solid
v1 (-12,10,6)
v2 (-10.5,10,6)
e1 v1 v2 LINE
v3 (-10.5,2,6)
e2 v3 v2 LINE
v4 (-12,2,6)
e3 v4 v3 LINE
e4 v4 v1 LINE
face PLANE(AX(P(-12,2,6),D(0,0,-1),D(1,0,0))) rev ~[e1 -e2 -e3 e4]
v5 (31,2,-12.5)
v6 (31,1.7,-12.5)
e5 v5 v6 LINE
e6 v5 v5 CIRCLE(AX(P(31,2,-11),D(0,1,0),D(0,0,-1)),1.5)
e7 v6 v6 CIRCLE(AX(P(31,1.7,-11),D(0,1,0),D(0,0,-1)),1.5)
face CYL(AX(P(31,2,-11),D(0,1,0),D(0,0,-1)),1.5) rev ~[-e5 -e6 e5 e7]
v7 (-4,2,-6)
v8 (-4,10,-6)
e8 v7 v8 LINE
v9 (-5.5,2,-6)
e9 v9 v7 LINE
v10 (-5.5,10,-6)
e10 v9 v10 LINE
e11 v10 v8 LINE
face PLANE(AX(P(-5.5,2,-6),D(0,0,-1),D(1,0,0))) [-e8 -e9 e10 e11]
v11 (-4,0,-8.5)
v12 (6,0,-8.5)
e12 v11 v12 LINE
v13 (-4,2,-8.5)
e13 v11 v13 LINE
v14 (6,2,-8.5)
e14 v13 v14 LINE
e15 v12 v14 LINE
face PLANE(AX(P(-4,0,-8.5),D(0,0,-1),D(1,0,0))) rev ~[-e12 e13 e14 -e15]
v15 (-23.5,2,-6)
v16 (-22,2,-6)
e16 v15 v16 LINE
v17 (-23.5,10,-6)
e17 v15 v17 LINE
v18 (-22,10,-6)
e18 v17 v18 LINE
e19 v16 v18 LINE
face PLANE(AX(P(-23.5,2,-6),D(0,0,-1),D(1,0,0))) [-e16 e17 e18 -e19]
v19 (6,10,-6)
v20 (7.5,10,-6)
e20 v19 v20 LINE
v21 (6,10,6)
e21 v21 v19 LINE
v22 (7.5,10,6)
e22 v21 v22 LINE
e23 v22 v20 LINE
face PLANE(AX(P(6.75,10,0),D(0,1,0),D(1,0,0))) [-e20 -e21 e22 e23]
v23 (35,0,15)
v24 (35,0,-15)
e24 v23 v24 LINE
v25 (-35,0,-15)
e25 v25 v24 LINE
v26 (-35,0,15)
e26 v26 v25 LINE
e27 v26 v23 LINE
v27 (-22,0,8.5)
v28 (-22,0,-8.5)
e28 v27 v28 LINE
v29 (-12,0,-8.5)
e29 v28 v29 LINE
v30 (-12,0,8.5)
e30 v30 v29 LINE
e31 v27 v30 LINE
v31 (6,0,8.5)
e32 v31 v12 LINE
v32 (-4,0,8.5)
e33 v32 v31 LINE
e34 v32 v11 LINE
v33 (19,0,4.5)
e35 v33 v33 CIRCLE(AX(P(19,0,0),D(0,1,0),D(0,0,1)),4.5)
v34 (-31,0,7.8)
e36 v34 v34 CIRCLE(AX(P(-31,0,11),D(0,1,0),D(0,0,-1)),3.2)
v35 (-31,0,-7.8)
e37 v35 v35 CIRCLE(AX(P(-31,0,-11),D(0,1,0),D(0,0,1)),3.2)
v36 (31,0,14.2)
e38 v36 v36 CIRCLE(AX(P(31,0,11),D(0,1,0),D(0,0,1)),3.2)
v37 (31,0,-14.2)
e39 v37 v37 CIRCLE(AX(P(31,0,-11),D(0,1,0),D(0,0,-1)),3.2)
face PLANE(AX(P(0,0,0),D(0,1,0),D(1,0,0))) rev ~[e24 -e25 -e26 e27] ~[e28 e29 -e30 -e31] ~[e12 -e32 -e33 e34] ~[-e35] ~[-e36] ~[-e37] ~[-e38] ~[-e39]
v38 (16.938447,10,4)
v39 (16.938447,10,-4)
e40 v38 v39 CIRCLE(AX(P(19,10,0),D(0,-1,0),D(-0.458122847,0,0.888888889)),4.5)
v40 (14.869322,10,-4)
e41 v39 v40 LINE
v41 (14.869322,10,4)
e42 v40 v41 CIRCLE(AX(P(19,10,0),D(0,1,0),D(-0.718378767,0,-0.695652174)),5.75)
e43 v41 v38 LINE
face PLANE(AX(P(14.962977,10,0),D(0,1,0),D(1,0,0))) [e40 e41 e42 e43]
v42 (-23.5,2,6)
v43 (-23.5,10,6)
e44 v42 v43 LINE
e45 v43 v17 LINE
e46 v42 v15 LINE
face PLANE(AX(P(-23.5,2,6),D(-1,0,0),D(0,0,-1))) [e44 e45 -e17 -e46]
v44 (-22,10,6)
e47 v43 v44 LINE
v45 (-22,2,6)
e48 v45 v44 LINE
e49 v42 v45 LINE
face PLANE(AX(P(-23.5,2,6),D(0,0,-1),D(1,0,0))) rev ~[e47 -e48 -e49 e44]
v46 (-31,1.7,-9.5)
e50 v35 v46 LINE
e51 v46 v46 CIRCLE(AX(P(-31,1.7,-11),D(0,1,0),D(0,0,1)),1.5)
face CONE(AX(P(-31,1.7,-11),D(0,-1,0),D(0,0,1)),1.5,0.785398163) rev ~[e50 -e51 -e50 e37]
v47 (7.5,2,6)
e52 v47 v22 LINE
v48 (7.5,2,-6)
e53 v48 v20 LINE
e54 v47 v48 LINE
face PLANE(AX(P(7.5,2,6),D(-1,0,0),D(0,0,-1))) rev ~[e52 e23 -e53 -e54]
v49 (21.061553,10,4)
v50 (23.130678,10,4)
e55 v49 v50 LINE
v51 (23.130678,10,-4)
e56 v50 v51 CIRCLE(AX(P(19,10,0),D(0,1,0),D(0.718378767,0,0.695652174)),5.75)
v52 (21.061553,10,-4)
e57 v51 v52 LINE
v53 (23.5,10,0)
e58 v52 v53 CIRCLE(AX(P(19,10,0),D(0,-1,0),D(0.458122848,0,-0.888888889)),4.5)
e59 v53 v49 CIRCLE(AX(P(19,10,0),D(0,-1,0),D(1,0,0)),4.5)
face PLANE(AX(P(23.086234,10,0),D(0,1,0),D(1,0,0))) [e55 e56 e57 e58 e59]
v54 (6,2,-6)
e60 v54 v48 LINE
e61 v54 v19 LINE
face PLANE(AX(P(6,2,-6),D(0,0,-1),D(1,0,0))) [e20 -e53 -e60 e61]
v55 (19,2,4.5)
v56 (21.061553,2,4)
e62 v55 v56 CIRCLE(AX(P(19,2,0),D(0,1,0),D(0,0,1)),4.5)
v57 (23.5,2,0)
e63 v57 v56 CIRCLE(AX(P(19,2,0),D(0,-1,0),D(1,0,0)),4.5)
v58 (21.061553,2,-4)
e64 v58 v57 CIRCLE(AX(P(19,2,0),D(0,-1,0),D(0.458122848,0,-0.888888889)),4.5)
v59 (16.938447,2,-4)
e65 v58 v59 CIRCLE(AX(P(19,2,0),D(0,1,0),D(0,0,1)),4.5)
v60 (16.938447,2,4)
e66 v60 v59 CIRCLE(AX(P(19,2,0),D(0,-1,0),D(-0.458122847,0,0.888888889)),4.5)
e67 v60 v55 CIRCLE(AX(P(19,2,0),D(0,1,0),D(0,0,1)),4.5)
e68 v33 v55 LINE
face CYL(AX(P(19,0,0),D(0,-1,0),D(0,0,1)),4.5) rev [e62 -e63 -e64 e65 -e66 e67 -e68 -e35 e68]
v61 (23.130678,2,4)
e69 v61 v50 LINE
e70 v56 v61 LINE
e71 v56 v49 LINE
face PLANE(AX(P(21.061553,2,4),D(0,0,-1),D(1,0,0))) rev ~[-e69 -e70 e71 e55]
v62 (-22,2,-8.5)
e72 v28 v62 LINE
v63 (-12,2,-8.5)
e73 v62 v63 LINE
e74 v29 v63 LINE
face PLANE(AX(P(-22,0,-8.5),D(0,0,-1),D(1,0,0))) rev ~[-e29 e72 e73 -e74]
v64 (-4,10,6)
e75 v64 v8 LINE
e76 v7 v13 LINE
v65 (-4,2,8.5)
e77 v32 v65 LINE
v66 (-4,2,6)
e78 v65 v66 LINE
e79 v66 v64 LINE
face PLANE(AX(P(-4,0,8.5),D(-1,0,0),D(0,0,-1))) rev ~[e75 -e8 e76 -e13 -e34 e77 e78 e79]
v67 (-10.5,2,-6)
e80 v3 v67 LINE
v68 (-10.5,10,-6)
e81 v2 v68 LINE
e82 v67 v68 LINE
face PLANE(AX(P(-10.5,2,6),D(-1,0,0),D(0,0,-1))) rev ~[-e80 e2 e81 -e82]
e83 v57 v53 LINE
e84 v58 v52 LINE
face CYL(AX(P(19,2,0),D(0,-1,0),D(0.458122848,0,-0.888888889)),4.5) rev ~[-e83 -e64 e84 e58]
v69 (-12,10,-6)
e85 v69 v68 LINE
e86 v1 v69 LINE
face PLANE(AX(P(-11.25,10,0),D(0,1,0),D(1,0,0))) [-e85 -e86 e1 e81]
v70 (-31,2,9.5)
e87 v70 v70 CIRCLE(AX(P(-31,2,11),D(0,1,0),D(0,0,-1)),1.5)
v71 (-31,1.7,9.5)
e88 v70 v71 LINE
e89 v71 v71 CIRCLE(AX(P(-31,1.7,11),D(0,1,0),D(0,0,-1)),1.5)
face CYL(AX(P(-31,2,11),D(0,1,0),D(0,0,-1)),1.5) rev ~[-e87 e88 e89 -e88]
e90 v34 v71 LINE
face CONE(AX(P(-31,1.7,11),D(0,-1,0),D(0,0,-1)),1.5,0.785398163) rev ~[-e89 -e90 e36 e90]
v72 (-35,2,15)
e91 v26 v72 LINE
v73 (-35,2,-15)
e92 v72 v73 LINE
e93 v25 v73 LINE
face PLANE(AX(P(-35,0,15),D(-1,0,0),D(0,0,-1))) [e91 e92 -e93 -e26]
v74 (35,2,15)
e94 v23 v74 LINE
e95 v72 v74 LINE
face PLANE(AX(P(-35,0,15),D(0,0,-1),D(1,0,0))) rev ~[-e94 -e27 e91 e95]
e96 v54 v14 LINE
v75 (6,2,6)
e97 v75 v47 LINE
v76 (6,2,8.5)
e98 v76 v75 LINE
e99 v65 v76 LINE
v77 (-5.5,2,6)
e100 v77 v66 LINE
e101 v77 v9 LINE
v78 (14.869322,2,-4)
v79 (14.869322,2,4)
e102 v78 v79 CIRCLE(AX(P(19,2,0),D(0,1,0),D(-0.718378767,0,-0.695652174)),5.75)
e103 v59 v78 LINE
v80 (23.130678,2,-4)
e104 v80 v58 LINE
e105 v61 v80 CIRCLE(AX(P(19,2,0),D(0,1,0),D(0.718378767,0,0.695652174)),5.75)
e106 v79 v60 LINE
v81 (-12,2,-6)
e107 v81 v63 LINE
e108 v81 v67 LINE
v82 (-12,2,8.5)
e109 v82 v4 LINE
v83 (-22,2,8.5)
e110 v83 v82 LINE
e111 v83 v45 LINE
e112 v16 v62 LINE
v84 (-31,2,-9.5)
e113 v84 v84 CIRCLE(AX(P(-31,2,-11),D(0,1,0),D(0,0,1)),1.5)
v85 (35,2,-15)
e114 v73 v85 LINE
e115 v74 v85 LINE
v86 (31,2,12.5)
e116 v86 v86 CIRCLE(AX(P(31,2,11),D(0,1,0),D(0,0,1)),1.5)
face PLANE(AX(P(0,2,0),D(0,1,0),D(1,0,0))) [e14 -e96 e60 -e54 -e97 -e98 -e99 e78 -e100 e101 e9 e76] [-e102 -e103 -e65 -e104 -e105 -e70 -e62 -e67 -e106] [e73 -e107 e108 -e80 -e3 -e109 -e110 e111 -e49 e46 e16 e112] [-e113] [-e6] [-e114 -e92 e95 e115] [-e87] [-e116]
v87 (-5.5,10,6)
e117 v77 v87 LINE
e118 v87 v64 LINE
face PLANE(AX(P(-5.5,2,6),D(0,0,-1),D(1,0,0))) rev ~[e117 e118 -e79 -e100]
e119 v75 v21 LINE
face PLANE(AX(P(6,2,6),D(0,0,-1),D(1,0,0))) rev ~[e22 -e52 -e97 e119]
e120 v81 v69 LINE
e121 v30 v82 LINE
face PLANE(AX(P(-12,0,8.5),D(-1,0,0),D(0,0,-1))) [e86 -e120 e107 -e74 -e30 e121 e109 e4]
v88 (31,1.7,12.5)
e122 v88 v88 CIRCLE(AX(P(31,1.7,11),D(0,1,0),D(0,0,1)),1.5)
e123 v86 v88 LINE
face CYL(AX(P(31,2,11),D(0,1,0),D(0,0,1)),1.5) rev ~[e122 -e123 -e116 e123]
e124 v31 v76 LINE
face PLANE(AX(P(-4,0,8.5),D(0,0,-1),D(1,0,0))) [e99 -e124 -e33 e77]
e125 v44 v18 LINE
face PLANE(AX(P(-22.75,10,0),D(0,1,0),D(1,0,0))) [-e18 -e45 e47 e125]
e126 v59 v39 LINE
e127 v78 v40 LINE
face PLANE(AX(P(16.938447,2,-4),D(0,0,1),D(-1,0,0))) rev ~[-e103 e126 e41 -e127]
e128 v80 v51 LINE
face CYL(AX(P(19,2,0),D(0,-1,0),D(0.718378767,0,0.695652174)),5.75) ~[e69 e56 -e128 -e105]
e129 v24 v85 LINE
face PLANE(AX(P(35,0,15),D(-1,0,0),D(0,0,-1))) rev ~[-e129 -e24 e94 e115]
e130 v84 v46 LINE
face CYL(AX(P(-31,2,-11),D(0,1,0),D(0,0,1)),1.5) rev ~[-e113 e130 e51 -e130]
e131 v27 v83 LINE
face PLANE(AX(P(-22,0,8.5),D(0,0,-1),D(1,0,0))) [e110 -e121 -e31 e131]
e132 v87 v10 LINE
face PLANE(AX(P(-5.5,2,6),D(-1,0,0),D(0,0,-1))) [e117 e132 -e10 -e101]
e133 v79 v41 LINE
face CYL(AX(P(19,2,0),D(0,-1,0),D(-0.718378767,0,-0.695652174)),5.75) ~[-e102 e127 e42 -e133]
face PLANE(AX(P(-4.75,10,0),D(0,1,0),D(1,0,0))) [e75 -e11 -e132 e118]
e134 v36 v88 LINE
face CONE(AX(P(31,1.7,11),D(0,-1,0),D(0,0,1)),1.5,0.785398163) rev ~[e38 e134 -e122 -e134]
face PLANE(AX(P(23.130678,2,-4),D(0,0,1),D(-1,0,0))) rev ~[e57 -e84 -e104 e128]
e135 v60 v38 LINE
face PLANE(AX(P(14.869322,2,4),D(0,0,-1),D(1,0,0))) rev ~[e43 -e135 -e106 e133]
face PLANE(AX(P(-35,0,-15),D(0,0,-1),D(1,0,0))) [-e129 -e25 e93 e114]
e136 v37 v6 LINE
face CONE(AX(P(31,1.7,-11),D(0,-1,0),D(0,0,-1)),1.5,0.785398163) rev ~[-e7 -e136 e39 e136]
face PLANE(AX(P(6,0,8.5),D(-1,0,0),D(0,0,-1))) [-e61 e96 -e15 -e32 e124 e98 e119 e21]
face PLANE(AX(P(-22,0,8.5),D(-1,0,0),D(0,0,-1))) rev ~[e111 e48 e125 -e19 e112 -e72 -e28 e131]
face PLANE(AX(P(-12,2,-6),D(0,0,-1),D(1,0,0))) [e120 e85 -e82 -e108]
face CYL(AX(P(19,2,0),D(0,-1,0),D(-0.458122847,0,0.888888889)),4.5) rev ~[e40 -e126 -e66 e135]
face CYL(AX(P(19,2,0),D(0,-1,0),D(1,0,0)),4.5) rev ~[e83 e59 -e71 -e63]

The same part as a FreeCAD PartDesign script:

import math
import FreeCAD as App
import Part
import Sketcher

V = App.Vector


def edges_at(feature, points):
    """Names of the edges that pass closest to the given points."""
    edges = feature.Shape.Edges
    near = lambda p: min(range(len(edges)), key=lambda i: edges[i].distToShape(Part.Vertex(*p))[0])
    return sorted({f"Edge{near(p) + 1}" for p in points})


def add_polygon(sketch, points):
    """Adds a closed chain of lines whose ends are joined by coincident constraints."""
    first, n = sketch.GeometryCount, len(points)
    for a, b in zip(points, points[1:] + points[:1]):
        sketch.addGeometry(Part.LineSegment(App.Vector(*a, 0), App.Vector(*b, 0)), False)
    for i in range(n):
        sketch.addConstraint(Sketcher.Constraint("Coincident", first + i, 2, first + (i + 1) % n, 1))

doc = App.newDocument("Part")
body = doc.addObject("PartDesign::Body", "Body")

# Sketch on XZ plane
sketch1 = body.newObject("Sketcher::SketchObject", "Sketch")
sketch1.AttachmentSupport = (doc.getObject("XZ_Plane"), [""])
sketch1.MapMode = "FlatFace"
add_polygon(sketch1, [(-35, -15), (-35, 15), (35, 15), (35, -15)])  # lines 0-3
add_polygon(sketch1, [(-12, 8.5), (-22, 8.5), (-22, -8.5), (-12, -8.5)])  # lines 4-7
add_polygon(sketch1, [(6, 8.5), (-4, 8.5), (-4, -8.5), (6, -8.5)])  # lines 8-11
sketch1.addGeometry(Part.Circle(V(19, 0, 0), V(0, 0, 1), 4.5), False)  # 12
sketch1.addConstraint(Sketcher.Constraint("Vertical", 0))
sketch1.addConstraint(Sketcher.Constraint("Horizontal", 1))
sketch1.addConstraint(Sketcher.Constraint("Vertical", 2))
sketch1.addConstraint(Sketcher.Constraint("Horizontal", 3))
sketch1.addConstraint(Sketcher.Constraint("Horizontal", 4))
sketch1.addConstraint(Sketcher.Constraint("Vertical", 5))
sketch1.addConstraint(Sketcher.Constraint("Horizontal", 6))
sketch1.addConstraint(Sketcher.Constraint("Vertical", 7))
sketch1.addConstraint(Sketcher.Constraint("Horizontal", 8))
sketch1.addConstraint(Sketcher.Constraint("Vertical", 9))
sketch1.addConstraint(Sketcher.Constraint("Horizontal", 10))
sketch1.addConstraint(Sketcher.Constraint("Vertical", 11))
sketch1.addConstraint(Sketcher.Constraint("Symmetric", 0, 2, 2, 2, -1, 1))
sketch1.addConstraint(Sketcher.Constraint("PointOnObject", 12, 3, -1))
sketch1.addConstraint(Sketcher.Constraint("Horizontal", 7, 2, 8, 2))
sketch1.addConstraint(Sketcher.Constraint("Horizontal", 6, 2, 9, 2))
sketch1.addConstraint(Sketcher.Constraint("Equal", 6, 8))
sketch1.addConstraint(Sketcher.Constraint("Diameter", 12, 9.0))
sketch1.addConstraint(Sketcher.Constraint("DistanceX", 1, 1, 1, 2, 70.0))
sketch1.addConstraint(Sketcher.Constraint("DistanceX", 4, 2, 4, 1, 10.0))
sketch1.addConstraint(Sketcher.Constraint("DistanceY", 0, 1, 0, 2, 30.0))
sketch1.addConstraint(Sketcher.Constraint("DistanceY", 5, 2, 5, 1, 17.0))
sketch1.addConstraint(Sketcher.Constraint("DistanceX", -1, 1, 12, 3, 19.0))
sketch1.addConstraint(Sketcher.Constraint("DistanceX", 4, 2, -1, 1, 22.0))
sketch1.addConstraint(Sketcher.Constraint("DistanceX", 8, 2, -1, 1, 4.0))
sketch1.addConstraint(Sketcher.Constraint("DistanceY", -1, 1, 4, 2, 8.5))
pad1 = body.newObject("PartDesign::Pad", "Pad")
pad1.Profile = sketch1
pad1.Length = 2
pad1.Reversed = True

# Sketch on XZ plane
sketch2 = body.newObject("Sketcher::SketchObject", "Sketch001")
sketch2.AttachmentSupport = (doc.getObject("XZ_Plane"), [""])
sketch2.MapMode = "FlatFace"
sketch2.AttachmentOffset = App.Placement(V(0, 0, -2), App.Rotation())
add_polygon(sketch2, [(-23.5, -6), (-23.5, 6), (-22, 6), (-22, -6)])  # lines 0-3
add_polygon(sketch2, [(-12, -6), (-12, 6), (-10.5, 6), (-10.5, -6)])  # lines 4-7
add_polygon(sketch2, [(-5.5, -6), (-5.5, 6), (-4, 6), (-4, -6)])  # lines 8-11
add_polygon(sketch2, [(6, -6), (6, 6), (7.5, 6), (7.5, -6)])  # lines 12-15
sketch2.addGeometry(Part.LineSegment(V(16.9, -4, 0), V(14.9, -4, 0)), False)  # 16
sketch2.addGeometry(Part.ArcOfCircle(Part.Circle(V(19, 0, 0), V(0, 0, 1), 5.7), math.radians(136), math.radians(224)), False)  # 17
sketch2.addGeometry(Part.LineSegment(V(14.9, 4, 0), V(16.9, 4, 0)), False)  # 18
sketch2.addGeometry(Part.ArcOfCircle(Part.Circle(V(19, 0, 0), V(0, 0, 1), 4.5), math.radians(117), math.radians(243)), False)  # 19
sketch2.addGeometry(Part.LineSegment(V(23.1, -4, 0), V(21.1, -4, 0)), False)  # 20
sketch2.addGeometry(Part.ArcOfCircle(Part.Circle(V(19, 0, 0), V(0, 0, 1), 4.5), math.radians(-63), math.radians(0)), False)  # 21
sketch2.addGeometry(Part.ArcOfCircle(Part.Circle(V(19, 0, 0), V(0, 0, 1), 4.5), math.radians(0), math.radians(63)), False)  # 22
sketch2.addGeometry(Part.LineSegment(V(21.1, 4, 0), V(23.1, 4, 0)), False)  # 23
sketch2.addGeometry(Part.ArcOfCircle(Part.Circle(V(19, 0, 0), V(0, 0, 1), 5.7), math.radians(-44), math.radians(44)), False)  # 24
sketch2.addConstraint(Sketcher.Constraint("Coincident", 16, 2, 17, 2))
sketch2.addConstraint(Sketcher.Constraint("Coincident", 17, 1, 18, 1))
sketch2.addConstraint(Sketcher.Constraint("Coincident", 18, 2, 19, 1))
sketch2.addConstraint(Sketcher.Constraint("Coincident", 19, 2, 16, 1))
sketch2.addConstraint(Sketcher.Constraint("Coincident", 20, 2, 21, 1))
sketch2.addConstraint(Sketcher.Constraint("Tangent", 21, 2, 22, 1))
sketch2.addConstraint(Sketcher.Constraint("Coincident", 22, 2, 23, 1))
sketch2.addConstraint(Sketcher.Constraint("Coincident", 23, 2, 24, 2))
sketch2.addConstraint(Sketcher.Constraint("Coincident", 24, 1, 20, 1))
sketch2.addConstraint(Sketcher.Constraint("Vertical", 0))
sketch2.addConstraint(Sketcher.Constraint("Horizontal", 1))
sketch2.addConstraint(Sketcher.Constraint("Vertical", 2))
sketch2.addConstraint(Sketcher.Constraint("Horizontal", 3))
sketch2.addConstraint(Sketcher.Constraint("Vertical", 4))
sketch2.addConstraint(Sketcher.Constraint("Horizontal", 5))
sketch2.addConstraint(Sketcher.Constraint("Vertical", 6))
sketch2.addConstraint(Sketcher.Constraint("Horizontal", 7))
sketch2.addConstraint(Sketcher.Constraint("Vertical", 8))
sketch2.addConstraint(Sketcher.Constraint("Horizontal", 9))
sketch2.addConstraint(Sketcher.Constraint("Vertical", 10))
sketch2.addConstraint(Sketcher.Constraint("Horizontal", 11))
sketch2.addConstraint(Sketcher.Constraint("Vertical", 12))
sketch2.addConstraint(Sketcher.Constraint("Horizontal", 13))
sketch2.addConstraint(Sketcher.Constraint("Vertical", 14))
sketch2.addConstraint(Sketcher.Constraint("Horizontal", 15))
sketch2.addConstraint(Sketcher.Constraint("Horizontal", 16))
sketch2.addConstraint(Sketcher.Constraint("Horizontal", 18))
sketch2.addConstraint(Sketcher.Constraint("Horizontal", 20))
sketch2.addConstraint(Sketcher.Constraint("Horizontal", 23))
sketch2.addConstraint(Sketcher.Constraint("Coincident", 19, 3, 17, 3))
sketch2.addConstraint(Sketcher.Constraint("Coincident", 21, 3, 17, 3))
sketch2.addConstraint(Sketcher.Constraint("Coincident", 24, 3, 17, 3))
sketch2.addConstraint(Sketcher.Constraint("Equal", 19, 21))
sketch2.addConstraint(Sketcher.Constraint("Equal", 21, 22))
sketch2.addConstraint(Sketcher.Constraint("Equal", 17, 24))
sketch2.addConstraint(Sketcher.Constraint("Symmetric", 16, 2, 17, 1, -1))
sketch2.addConstraint(Sketcher.Constraint("PointOnObject", 21, 2, -1))
sketch2.addConstraint(Sketcher.Constraint("Horizontal", 1, 2, 4, 2))
sketch2.addConstraint(Sketcher.Constraint("Horizontal", 3, 2, 6, 2))
sketch2.addConstraint(Sketcher.Constraint("Horizontal", 5, 2, 8, 2))
sketch2.addConstraint(Sketcher.Constraint("Horizontal", 7, 2, 10, 2))
sketch2.addConstraint(Sketcher.Constraint("Horizontal", 9, 2, 12, 2))
sketch2.addConstraint(Sketcher.Constraint("Horizontal", 11, 2, 14, 2))
sketch2.addConstraint(Sketcher.Constraint("Horizontal", 19, 2, 20, 2))
sketch2.addConstraint(Sketcher.Constraint("Horizontal", 18, 2, 22, 2))
sketch2.addConstraint(Sketcher.Constraint("Equal", 3, 5))
sketch2.addConstraint(Sketcher.Constraint("Equal", 7, 9))
sketch2.addConstraint(Sketcher.Constraint("Equal", 11, 13))
sketch2.addConstraint(Sketcher.Constraint("Radius", 19, 4.5))
sketch2.addConstraint(Sketcher.Constraint("DistanceY", 0, 1, 0, 2, 12.0))
sketch2.addConstraint(Sketcher.Constraint("Radius", 17, 5.75))
sketch2.addConstraint(Sketcher.Constraint("DistanceX", 1, 1, 1, 2, 1.5))
sketch2.addConstraint(Sketcher.Constraint("DistanceX", -1, 1, 17, 3, 19.0))
sketch2.addConstraint(Sketcher.Constraint("DistanceY", -1, 1, 0, 2, 6.0))
sketch2.addConstraint(Sketcher.Constraint("DistanceX", 1, 2, -1, 1, 22.0))
sketch2.addConstraint(Sketcher.Constraint("DistanceX", 4, 2, -1, 1, 12.0))
sketch2.addConstraint(Sketcher.Constraint("DistanceX", 9, 2, -1, 1, 4.0))
sketch2.addConstraint(Sketcher.Constraint("DistanceX", -1, 1, 12, 2, 6.0))
sketch2.addConstraint(Sketcher.Constraint("DistanceY", 16, 2, -1, 1, 4.0))
pad2 = body.newObject("PartDesign::Pad", "Pad001")
pad2.Profile = sketch2
pad2.Length = 8
pad2.Reversed = True

# Sketch on XZ plane
sketch3 = body.newObject("Sketcher::SketchObject", "Sketch002")
sketch3.AttachmentSupport = (doc.getObject("XZ_Plane"), [""])
sketch3.MapMode = "FlatFace"
sketch3.AttachmentOffset = App.Placement(V(0, 0, -2), App.Rotation())
sketch3.addGeometry(Part.Circle(V(-31, -11, 0), V(0, 0, 1), 1.5), False)
sketch3.addConstraint(Sketcher.Constraint("Diameter", 0, 3.0))
sketch3.addConstraint(Sketcher.Constraint("DistanceX", 0, 3, -1, 1, 31.0))
sketch3.addConstraint(Sketcher.Constraint("DistanceY", 0, 3, -1, 1, 11.0))
pocket1 = body.newObject("PartDesign::Pocket", "Pocket")
pocket1.Profile = sketch3
pocket1.Type = "UpToFirst"
pocket1.Reversed = True

# Sketch on XZ plane
sketch4 = body.newObject("Sketcher::SketchObject", "Sketch003")
sketch4.AttachmentSupport = (doc.getObject("XZ_Plane"), [""])
sketch4.MapMode = "FlatFace"
sketch4.AttachmentOffset = App.Placement(V(0, 0, -2), App.Rotation())
sketch4.addGeometry(Part.Circle(V(31, -11, 0), V(0, 0, 1), 1.5), False)
sketch4.addConstraint(Sketcher.Constraint("Diameter", 0, 3.0))
sketch4.addConstraint(Sketcher.Constraint("DistanceX", -1, 1, 0, 3, 31.0))
sketch4.addConstraint(Sketcher.Constraint("DistanceY", 0, 3, -1, 1, 11.0))
pocket2 = body.newObject("PartDesign::Pocket", "Pocket001")
pocket2.Profile = sketch4
pocket2.Type = "UpToFirst"
pocket2.Reversed = True

# Sketch on XZ plane
sketch5 = body.newObject("Sketcher::SketchObject", "Sketch004")
sketch5.AttachmentSupport = (doc.getObject("XZ_Plane"), [""])
sketch5.MapMode = "FlatFace"
sketch5.AttachmentOffset = App.Placement(V(0, 0, -2), App.Rotation())
sketch5.addGeometry(Part.Circle(V(31, 11, 0), V(0, 0, 1), 1.5), False)
sketch5.addConstraint(Sketcher.Constraint("Diameter", 0, 3.0))
sketch5.addConstraint(Sketcher.Constraint("DistanceX", -1, 1, 0, 3, 31.0))
sketch5.addConstraint(Sketcher.Constraint("DistanceY", -1, 1, 0, 3, 11.0))
pocket3 = body.newObject("PartDesign::Pocket", "Pocket002")
pocket3.Profile = sketch5
pocket3.Type = "UpToFirst"
pocket3.Reversed = True

# Sketch on XZ plane
sketch6 = body.newObject("Sketcher::SketchObject", "Sketch005")
sketch6.AttachmentSupport = (doc.getObject("XZ_Plane"), [""])
sketch6.MapMode = "FlatFace"
sketch6.AttachmentOffset = App.Placement(V(0, 0, -2), App.Rotation())
sketch6.addGeometry(Part.Circle(V(-31, 11, 0), V(0, 0, 1), 1.5), False)
sketch6.addConstraint(Sketcher.Constraint("Diameter", 0, 3.0))
sketch6.addConstraint(Sketcher.Constraint("DistanceX", 0, 3, -1, 1, 31.0))
sketch6.addConstraint(Sketcher.Constraint("DistanceY", -1, 1, 0, 3, 11.0))
pocket4 = body.newObject("PartDesign::Pocket", "Pocket003")
pocket4.Profile = sketch6
pocket4.Type = "UpToFirst"
pocket4.Reversed = True
doc.recompute()

chamfer = body.newObject("PartDesign::Chamfer", "Chamfer")
chamfer.Base = (pocket4, edges_at(pocket4, [
    (-31, 0, -12.5),
    (31, 0, -9.5),
    (31, 0, 9.5),
    (-31, 0, 12.5),
]))
chamfer.Size = 1.7

doc.recompute()
